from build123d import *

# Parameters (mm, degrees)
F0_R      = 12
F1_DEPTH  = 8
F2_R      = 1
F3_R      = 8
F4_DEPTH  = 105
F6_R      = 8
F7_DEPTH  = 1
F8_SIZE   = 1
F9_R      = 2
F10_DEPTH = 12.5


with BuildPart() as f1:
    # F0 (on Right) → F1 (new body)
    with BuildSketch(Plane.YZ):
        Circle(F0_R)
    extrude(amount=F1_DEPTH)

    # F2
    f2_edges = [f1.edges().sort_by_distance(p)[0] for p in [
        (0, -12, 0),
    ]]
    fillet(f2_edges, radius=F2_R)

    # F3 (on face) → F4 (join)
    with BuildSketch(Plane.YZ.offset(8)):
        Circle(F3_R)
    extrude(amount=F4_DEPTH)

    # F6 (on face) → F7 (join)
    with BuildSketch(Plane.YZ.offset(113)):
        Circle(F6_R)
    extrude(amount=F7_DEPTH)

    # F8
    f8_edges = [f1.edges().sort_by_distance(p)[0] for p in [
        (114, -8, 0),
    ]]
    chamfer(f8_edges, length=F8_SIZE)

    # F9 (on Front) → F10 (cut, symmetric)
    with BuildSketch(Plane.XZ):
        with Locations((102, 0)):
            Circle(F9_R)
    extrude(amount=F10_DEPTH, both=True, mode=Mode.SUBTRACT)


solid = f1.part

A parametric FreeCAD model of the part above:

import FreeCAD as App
import Part
import Sketcher

V = App.Vector


def edges_at(feature, points):
    """Names of the edges that pass closest to the given points."""
    edges = feature.Shape.Edges
    near = lambda p: min(range(len(edges)), key=lambda i: edges[i].distToShape(Part.Vertex(*p))[0])
    return sorted({f"Edge{near(p) + 1}" for p in points})

doc = App.newDocument("Part")
body = doc.addObject("PartDesign::Body", "Body")

# Sketch on YZ plane
sketch1 = body.newObject("Sketcher::SketchObject", "Sketch")
sketch1.AttachmentSupport = (doc.getObject("YZ_Plane"), [""])
sketch1.MapMode = "FlatFace"
sketch1.addGeometry(Part.Circle(V(0, 0, 0), V(0, 0, 1), 12), False)
sketch1.addConstraint([
    Sketcher.Constraint("Coincident", 0, 3, -1, 1),
    Sketcher.Constraint("Diameter", 0, 24.0),
])
pad1 = body.newObject("PartDesign::Pad", "Pad")
pad1.Profile = sketch1
pad1.Length = 8
doc.recompute()

fillet = body.newObject("PartDesign::Fillet", "Fillet")
fillet.Base = (pad1, edges_at(pad1, [(0, -12, 0)]))
fillet.Radius = 1

# Sketch on YZ plane
sketch2 = body.newObject("Sketcher::SketchObject", "Sketch001")
sketch2.AttachmentSupport = (doc.getObject("YZ_Plane"), [""])
sketch2.MapMode = "FlatFace"
sketch2.AttachmentOffset = App.Placement(V(0, 0, 8), App.Rotation())
sketch2.addGeometry(Part.Circle(V(0, 0, 0), V(0, 0, 1), 8), False)
sketch2.addConstraint([
    Sketcher.Constraint("Coincident", 0, 3, -1, 1),
    Sketcher.Constraint("Diameter", 0, 16.0),
])
pad2 = body.newObject("PartDesign::Pad", "Pad001")
pad2.Profile = sketch2
pad2.Length = 105

# Sketch on YZ plane
sketch3 = body.newObject("Sketcher::SketchObject", "Sketch002")
sketch3.AttachmentSupport = (doc.getObject("YZ_Plane"), [""])
sketch3.MapMode = "FlatFace"
sketch3.AttachmentOffset = App.Placement(V(0, 0, 113), App.Rotation())
sketch3.addGeometry(Part.Circle(V(0, 0, 0), V(0, 0, 1), 8), False)
sketch3.addConstraint([
    Sketcher.Constraint("Coincident", 0, 3, -1, 1),
    Sketcher.Constraint("Diameter", 0, 16.0),
])
pad3 = body.newObject("PartDesign::Pad", "Pad002")
pad3.Profile = sketch3
pad3.Length = 1
doc.recompute()

chamfer = body.newObject("PartDesign::Chamfer", "Chamfer")
chamfer.Base = (pad3, edges_at(pad3, [(114, -8, 0)]))
chamfer.Size = 1

# Sketch on XZ plane
sketch4 = body.newObject("Sketcher::SketchObject", "Sketch003")
sketch4.AttachmentSupport = (doc.getObject("XZ_Plane"), [""])
sketch4.MapMode = "FlatFace"
sketch4.addGeometry(Part.Circle(V(102, 0, 0), V(0, 0, 1), 2), False)
sketch4.addConstraint([
    Sketcher.Constraint("PointOnObject", 0, 3, -1),
    Sketcher.Constraint("Diameter", 0, 4.0),
    Sketcher.Constraint("DistanceX", -1, 1, 0, 3, 102.0),
])
pocket1 = body.newObject("PartDesign::Pocket", "Pocket")
pocket1.Profile = sketch4
pocket1.Length = 25
pocket1.Midplane = True

doc.recompute()
